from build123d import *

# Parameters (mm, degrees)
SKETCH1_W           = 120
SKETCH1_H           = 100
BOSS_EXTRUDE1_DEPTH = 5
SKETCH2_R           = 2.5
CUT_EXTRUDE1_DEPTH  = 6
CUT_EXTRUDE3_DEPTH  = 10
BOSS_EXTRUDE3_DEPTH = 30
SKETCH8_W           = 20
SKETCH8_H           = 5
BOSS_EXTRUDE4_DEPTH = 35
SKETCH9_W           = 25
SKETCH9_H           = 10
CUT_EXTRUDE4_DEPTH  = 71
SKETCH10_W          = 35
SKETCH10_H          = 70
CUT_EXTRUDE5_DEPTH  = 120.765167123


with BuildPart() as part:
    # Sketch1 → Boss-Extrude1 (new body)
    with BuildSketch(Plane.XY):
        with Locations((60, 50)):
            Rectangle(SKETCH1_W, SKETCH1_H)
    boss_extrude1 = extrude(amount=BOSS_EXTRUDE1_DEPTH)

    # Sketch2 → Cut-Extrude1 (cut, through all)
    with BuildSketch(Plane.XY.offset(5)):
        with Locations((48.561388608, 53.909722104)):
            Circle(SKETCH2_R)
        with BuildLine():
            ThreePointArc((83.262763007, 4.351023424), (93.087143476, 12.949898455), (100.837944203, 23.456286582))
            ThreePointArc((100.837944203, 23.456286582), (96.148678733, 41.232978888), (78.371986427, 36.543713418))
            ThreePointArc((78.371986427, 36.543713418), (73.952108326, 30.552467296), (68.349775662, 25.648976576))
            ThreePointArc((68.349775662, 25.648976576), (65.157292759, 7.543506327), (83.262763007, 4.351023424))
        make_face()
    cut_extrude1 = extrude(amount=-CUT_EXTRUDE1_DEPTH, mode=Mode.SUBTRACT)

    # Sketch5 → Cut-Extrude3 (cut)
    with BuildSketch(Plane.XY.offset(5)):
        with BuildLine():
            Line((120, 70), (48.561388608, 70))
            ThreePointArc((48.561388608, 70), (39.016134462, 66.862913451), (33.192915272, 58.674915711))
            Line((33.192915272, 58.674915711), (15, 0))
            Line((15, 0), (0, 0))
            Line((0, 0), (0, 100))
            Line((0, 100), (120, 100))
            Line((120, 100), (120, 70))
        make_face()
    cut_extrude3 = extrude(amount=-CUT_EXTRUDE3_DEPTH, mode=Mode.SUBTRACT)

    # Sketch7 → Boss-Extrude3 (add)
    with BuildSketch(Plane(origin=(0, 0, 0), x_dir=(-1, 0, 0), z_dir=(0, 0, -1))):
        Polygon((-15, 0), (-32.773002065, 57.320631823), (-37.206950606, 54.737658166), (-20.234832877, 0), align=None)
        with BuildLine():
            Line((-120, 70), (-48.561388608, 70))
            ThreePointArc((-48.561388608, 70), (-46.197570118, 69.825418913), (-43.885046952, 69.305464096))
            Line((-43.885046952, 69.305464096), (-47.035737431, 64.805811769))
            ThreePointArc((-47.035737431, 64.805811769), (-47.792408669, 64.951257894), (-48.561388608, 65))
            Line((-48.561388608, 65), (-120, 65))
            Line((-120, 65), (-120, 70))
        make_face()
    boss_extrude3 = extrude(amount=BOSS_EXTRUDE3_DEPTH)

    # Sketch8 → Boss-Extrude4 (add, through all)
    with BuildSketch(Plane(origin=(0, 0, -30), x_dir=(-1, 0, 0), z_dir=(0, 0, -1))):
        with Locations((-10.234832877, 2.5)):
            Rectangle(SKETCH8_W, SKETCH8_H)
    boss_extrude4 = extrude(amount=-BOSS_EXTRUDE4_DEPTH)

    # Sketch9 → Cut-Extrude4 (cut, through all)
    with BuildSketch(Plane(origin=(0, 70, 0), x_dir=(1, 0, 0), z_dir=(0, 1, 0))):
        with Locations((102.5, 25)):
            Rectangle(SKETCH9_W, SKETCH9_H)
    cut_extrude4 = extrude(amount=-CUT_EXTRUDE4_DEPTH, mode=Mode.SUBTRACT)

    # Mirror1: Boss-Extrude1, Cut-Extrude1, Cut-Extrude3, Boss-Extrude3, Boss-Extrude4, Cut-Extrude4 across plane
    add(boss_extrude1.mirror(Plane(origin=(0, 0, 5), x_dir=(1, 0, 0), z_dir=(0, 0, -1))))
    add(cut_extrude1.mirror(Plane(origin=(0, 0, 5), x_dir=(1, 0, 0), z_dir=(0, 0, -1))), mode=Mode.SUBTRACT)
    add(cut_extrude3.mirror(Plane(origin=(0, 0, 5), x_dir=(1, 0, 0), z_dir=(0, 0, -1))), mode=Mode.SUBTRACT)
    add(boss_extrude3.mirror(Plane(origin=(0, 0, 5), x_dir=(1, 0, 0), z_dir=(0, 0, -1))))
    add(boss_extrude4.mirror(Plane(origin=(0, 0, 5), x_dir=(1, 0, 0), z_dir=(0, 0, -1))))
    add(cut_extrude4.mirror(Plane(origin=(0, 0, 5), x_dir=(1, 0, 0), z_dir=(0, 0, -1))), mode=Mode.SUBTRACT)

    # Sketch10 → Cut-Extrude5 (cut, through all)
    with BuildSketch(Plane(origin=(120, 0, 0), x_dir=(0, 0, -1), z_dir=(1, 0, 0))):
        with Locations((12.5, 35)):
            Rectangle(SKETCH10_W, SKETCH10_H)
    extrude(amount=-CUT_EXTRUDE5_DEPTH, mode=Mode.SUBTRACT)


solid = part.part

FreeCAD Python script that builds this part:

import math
import FreeCAD as App
import Part
import Sketcher
Q = App.Units.Quantity


def add_polygon(sketch, points):
    """Adds a closed chain of lines whose ends are joined by coincident constraints."""
    first, n = sketch.GeometryCount, len(points)
    for a, b in zip(points, points[1:] + points[:1]):
        sketch.addGeometry(Part.LineSegment(App.Vector(*a, 0), App.Vector(*b, 0)), False)
    for i in range(n):
        sketch.addConstraint(Sketcher.Constraint("Coincident", first + i, 2, first + (i + 1) % n, 1))

doc = App.newDocument("Part")
body = doc.addObject("PartDesign::Body", "Body")

sketch1 = body.newObject("Sketcher::SketchObject", "Sketch")
sketch1.AttachmentSupport = (doc.getObject("XY_Plane"), [""])
sketch1.MapMode = "FlatFace"
add_polygon(sketch1, [(0, 100), (0, 0), (120, 0), (120, 100)])
sketch1.addConstraint(Sketcher.Constraint("Vertical", 0))
sketch1.addConstraint(Sketcher.Constraint("Horizontal", 1))
sketch1.addConstraint(Sketcher.Constraint("Vertical", 2))
sketch1.addConstraint(Sketcher.Constraint("Horizontal", 3))
sketch1.addConstraint(Sketcher.Constraint("Coincident", 0, 2, -1, 1))
sketch1.addConstraint(Sketcher.Constraint("DistanceX", 1, 1, 1, 2, Q("120 mm")))
sketch1.addConstraint(Sketcher.Constraint("DistanceY", 0, 2, 0, 1, Q("100 mm")))
pad1 = body.newObject("PartDesign::Pad", "Pad")
pad1.Profile = sketch1
pad1.Length = 5

sketch2 = body.newObject("Sketcher::SketchObject", "Sketch001")
sketch2.AttachmentSupport = (doc.getObject("XY_Plane"), [""])
sketch2.MapMode = "FlatFace"
sketch2.AttachmentOffset = App.Placement(App.Vector(0, 0, 5), App.Rotation())
sketch2.addGeometry(Part.Circle(App.Vector(48.561389, 53.909722, 0), App.Vector(0, 0, 1), 2.5), False)
sketch2.addGeometry(Part.ArcOfCircle(Part.Circle(App.Vector(48.561389, 53.909722, 0), App.Vector(0, 0, 1), 60.5), math.radians(-55), math.radians(-30.222716)), False)
sketch2.addGeometry(Part.ArcOfCircle(Part.Circle(App.Vector(89.604965, 30, 0), App.Vector(0, 0, 1), 13), math.radians(-30.222716), math.radians(149.777284)), False)
sketch2.addGeometry(Part.ArcOfCircle(Part.Circle(App.Vector(48.561389, 53.909722, 0), App.Vector(0, 0, 1), 34.5), math.radians(-55), math.radians(-30.222716)), False)
sketch2.addGeometry(Part.ArcOfCircle(Part.Circle(App.Vector(75.806269, 15, 0), App.Vector(0, 0, 1), 13), math.radians(125), math.radians(305)), False)
sketch2.addConstraint(Sketcher.Constraint("Tangent", 1, 2, 2, 1))
sketch2.addConstraint(Sketcher.Constraint("Tangent", 2, 2, 3, 2))
sketch2.addConstraint(Sketcher.Constraint("Tangent", 3, 1, 4, 1))
sketch2.addConstraint(Sketcher.Constraint("Tangent", 4, 2, 1, 1))
sketch2.addConstraint(Sketcher.Constraint("Coincident", 1, 3, 0, 3))
sketch2.addConstraint(Sketcher.Constraint("Coincident", 3, 3, 0, 3))
sketch2.addConstraint(Sketcher.Constraint("Diameter", 0, Q("5 mm")))
sketch2.addConstraint(Sketcher.Constraint("Radius", 2, Q("13 mm")))
sketch2.addConstraint(Sketcher.Constraint("Radius", 1, Q("60.5 mm")))
sketch2.addConstraint(Sketcher.Constraint("DistanceY", -1, 1, 2, 3, Q("30 mm")))
sketch2.addConstraint(Sketcher.Constraint("DistanceY", -1, 1, 4, 3, Q("15 mm")))
sketch2.addConstraint(Sketcher.Constraint("DistanceX", -1, 1, 0, 3, Q("48.561389 mm")))
sketch2.addConstraint(Sketcher.Constraint("DistanceX", -1, 1, 4, 3, Q("75.806269 mm")))
pocket1 = body.newObject("PartDesign::Pocket", "Pocket")
pocket1.Profile = sketch2
pocket1.Type = "ThroughAll"

sketch3 = body.newObject("Sketcher::SketchObject", "Sketch002")
sketch3.AttachmentSupport = (doc.getObject("XY_Plane"), [""])
sketch3.MapMode = "FlatFace"
sketch3.AttachmentOffset = App.Placement(App.Vector(0, 0, 5), App.Rotation())
sketch3.addGeometry(Part.LineSegment(App.Vector(48.561389, 70, 0), App.Vector(120, 70, 0)), False)
sketch3.addGeometry(Part.LineSegment(App.Vector(120, 70, 0), App.Vector(120, 100, 0)), False)
sketch3.addGeometry(Part.LineSegment(App.Vector(120, 100, 0), App.Vector(0, 100, 0)), False)
sketch3.addGeometry(Part.LineSegment(App.Vector(0, 100, 0), App.Vector(0, 0, 0)), False)
sketch3.addGeometry(Part.LineSegment(App.Vector(0, 0, 0), App.Vector(15, 0, 0)), False)
sketch3.addGeometry(Part.LineSegment(App.Vector(15, 0, 0), App.Vector(33.192915, 58.674916, 0)), False)
sketch3.addGeometry(Part.ArcOfCircle(Part.Circle(App.Vector(48.561389, 53.909722, 0), App.Vector(0, 0, 1), 16.090278), math.radians(90), math.radians(162.773275)), False)
sketch3.addConstraint(Sketcher.Constraint("Coincident", 0, 2, 1, 1))
sketch3.addConstraint(Sketcher.Constraint("Coincident", 1, 2, 2, 1))
sketch3.addConstraint(Sketcher.Constraint("Coincident", 2, 2, 3, 1))
sketch3.addConstraint(Sketcher.Constraint("Coincident", 3, 2, 4, 1))
sketch3.addConstraint(Sketcher.Constraint("Coincident", 4, 2, 5, 1))
sketch3.addConstraint(Sketcher.Constraint("Tangent", 5, 2, 6, 2))
sketch3.addConstraint(Sketcher.Constraint("Tangent", 6, 1, 0, 1))
sketch3.addConstraint(Sketcher.Constraint("Horizontal", 0))
sketch3.addConstraint(Sketcher.Constraint("Vertical", 1))
sketch3.addConstraint(Sketcher.Constraint("Horizontal", 2))
sketch3.addConstraint(Sketcher.Constraint("Vertical", 3))
sketch3.addConstraint(Sketcher.Constraint("Horizontal", 4))
sketch3.addConstraint(Sketcher.Constraint("Coincident", 3, 2, -1, 1))
sketch3.addConstraint(Sketcher.Constraint("DistanceX", 2, 2, 2, 1, Q("120 mm")))
sketch3.addConstraint(Sketcher.Constraint("DistanceX", 4, 1, 4, 2, Q("15 mm")))
sketch3.addConstraint(Sketcher.Constraint("DistanceY", 1, 1, 1, 2, Q("30 mm")))
sketch3.addConstraint(Sketcher.Constraint("DistanceY", 3, 2, 3, 1, Q("100 mm")))
sketch3.addConstraint(Sketcher.Constraint("Radius", 6, Q("16.090278 mm")))
sketch3.addConstraint(Sketcher.Constraint("DistanceX", 0, 1, 0, 2, Q("71.438611 mm")))
pocket2 = body.newObject("PartDesign::Pocket", "Pocket001")
pocket2.Profile = sketch3
pocket2.Length = 10

sketch4 = body.newObject("Sketcher::SketchObject", "Sketch003")
sketch4.AttachmentSupport = (doc.getObject("XY_Plane"), [""])
sketch4.MapMode = "FlatFace"
add_polygon(sketch4, [(15, 0), (32.773002, 57.320632), (37.206951, 54.737658), (20.234833, 0)])
sketch4.addGeometry(Part.LineSegment(App.Vector(48.561389, 70, 0), App.Vector(120, 70, 0)), False)
sketch4.addGeometry(Part.LineSegment(App.Vector(120, 70, 0), App.Vector(120, 65, 0)), False)
sketch4.addGeometry(Part.LineSegment(App.Vector(120, 65, 0), App.Vector(48.561389, 65, 0)), False)
sketch4.addGeometry(Part.ArcOfCircle(Part.Circle(App.Vector(48.561389, 58.909722, 0), App.Vector(0, 0, 1), 6.090278), math.radians(90), math.radians(104.507457)), False)
sketch4.addGeometry(Part.LineSegment(App.Vector(47.035737, 64.805812, 0), App.Vector(43.885047, 69.305464, 0)), False)
sketch4.addGeometry(Part.ArcOfCircle(Part.Circle(App.Vector(48.561389, 53.909722, 0), App.Vector(0, 0, 1), 16.090278), math.radians(90), math.radians(106.895767)), False)
sketch4.addConstraint(Sketcher.Constraint("Coincident", 4, 2, 5, 1))
sketch4.addConstraint(Sketcher.Constraint("Coincident", 5, 2, 6, 1))
sketch4.addConstraint(Sketcher.Constraint("Tangent", 6, 2, 7, 1))
sketch4.addConstraint(Sketcher.Constraint("Coincident", 7, 2, 8, 1))
sketch4.addConstraint(Sketcher.Constraint("Coincident", 8, 2, 9, 2))
sketch4.addConstraint(Sketcher.Constraint("Tangent", 9, 1, 4, 1))
sketch4.addConstraint(Sketcher.Constraint("Horizontal", 3))
sketch4.addConstraint(Sketcher.Constraint("Horizontal", 4))
sketch4.addConstraint(Sketcher.Constraint("Vertical", 5))
sketch4.addConstraint(Sketcher.Constraint("Horizontal", 6))
sketch4.addConstraint(Sketcher.Constraint("PointOnObject", 2, 2, -1))
sketch4.addConstraint(Sketcher.Constraint("Parallel", 0, 2))
sketch4.addConstraint(Sketcher.Constraint("Vertical", 7, 3, 9, 3))
sketch4.addConstraint(Sketcher.Constraint("DistanceY", 5, 2, 5, 1, Q("5 mm")))
sketch4.addConstraint(Sketcher.Constraint("Angle", 8, Q("125 deg")))
sketch4.addConstraint(Sketcher.Constraint("DistanceX", -1, 1, 3, 2, Q("15 mm")))
sketch4.addConstraint(Sketcher.Constraint("DistanceX", -1, 1, 4, 2, Q("120 mm")))
sketch4.addConstraint(Sketcher.Constraint("DistanceY", -1, 1, 4, 2, Q("70 mm")))
sketch4.addConstraint(Sketcher.Constraint("DistanceY", 9, 3, 7, 3, Q("5 mm")))
sketch4.addConstraint(Sketcher.Constraint("Radius", 7, Q("6.090278 mm")))
sketch4.addConstraint(Sketcher.Constraint("Distance", 2, Q("57.308499 mm")))
sketch4.addConstraint(Sketcher.Constraint("DistanceX", 4, 1, 4, 2, Q("71.438611 mm")))
sketch4.addConstraint(Sketcher.Constraint("Distance", 8, Q("5.493061 mm")))
sketch4.addConstraint(Sketcher.Constraint("DistanceX", 3, 2, 3, 1, Q("5.234833 mm")))
sketch4.addConstraint(Sketcher.Constraint("DistanceY", -1, 1, 0, 2, Q("57.320632 mm")))
sketch4.addConstraint(Sketcher.Constraint("DistanceX", -1, 1, 1, 2, Q("37.206951 mm")))
pad2 = body.newObject("PartDesign::Pad", "Pad001")
pad2.Profile = sketch4
pad2.Length = 30
pad2.Reversed = True

sketch5 = body.newObject("Sketcher::SketchObject", "Sketch004")
sketch5.AttachmentSupport = (doc.getObject("XY_Plane"), [""])
sketch5.MapMode = "FlatFace"
sketch5.AttachmentOffset = App.Placement(App.Vector(0, 0, -30), App.Rotation())
add_polygon(sketch5, [(20.234833, 5), (20.234833, 0), (0.234833, 0), (0.234833, 5)])
sketch5.addConstraint(Sketcher.Constraint("Vertical", 0))
sketch5.addConstraint(Sketcher.Constraint("Horizontal", 1))
sketch5.addConstraint(Sketcher.Constraint("Vertical", 2))
sketch5.addConstraint(Sketcher.Constraint("Horizontal", 3))
sketch5.addConstraint(Sketcher.Constraint("PointOnObject", 0, 2, -1))
sketch5.addConstraint(Sketcher.Constraint("DistanceX", 1, 2, 1, 1, Q("20 mm")))
sketch5.addConstraint(Sketcher.Constraint("DistanceY", 0, 2, 0, 1, Q("5 mm")))
sketch5.addConstraint(Sketcher.Constraint("DistanceX", -1, 1, 0, 2, Q("20.234833 mm")))
pad3 = body.newObject("PartDesign::Pad", "Pad002")
pad3.Profile = sketch5
pad3.Length = 35

sketch6 = body.newObject("Sketcher::SketchObject", "Sketch005")
sketch6.AttachmentSupport = (doc.getObject("XZ_Plane"), [""])
sketch6.MapMode = "FlatFace"
sketch6.AttachmentOffset = App.Placement(App.Vector(0, 0, -70), App.Rotation())
add_polygon(sketch6, [(90, -30), (90, -20), (115, -20), (115, -30)])
sketch6.addConstraint(Sketcher.Constraint("Vertical", 0))
sketch6.addConstraint(Sketcher.Constraint("Horizontal", 1))
sketch6.addConstraint(Sketcher.Constraint("Vertical", 2))
sketch6.addConstraint(Sketcher.Constraint("Horizontal", 3))
sketch6.addConstraint(Sketcher.Constraint("DistanceX", 1, 1, 1, 2, Q("25 mm")))
sketch6.addConstraint(Sketcher.Constraint("DistanceY", 0, 1, 0, 2, Q("10 mm")))
sketch6.addConstraint(Sketcher.Constraint("DistanceX", -1, 1, 0, 2, Q("90 mm")))
sketch6.addConstraint(Sketcher.Constraint("DistanceY", 0, 2, -1, 1, Q("20 mm")))
pocket3 = body.newObject("PartDesign::Pocket", "Pocket002")
pocket3.Profile = sketch6
pocket3.Type = "ThroughAll"
pocket3.Reversed = True
doc.recompute()

datumplane = body.newObject("PartDesign::Plane", "DatumPlane")
datumplane.AttachmentSupport = (doc.getObject("XY_Plane"), [""])
datumplane.MapMode = "FlatFace"
datumplane.AttachmentOffset = App.Placement(App.Vector(0, 0, 5), App.Rotation())
mirrored = body.newObject("PartDesign::Mirrored", "Mirrored")
mirrored.Originals = [pad1, pocket1, pocket2, pad2, pad3, pocket3]
mirrored.MirrorPlane = (datumplane, [""])
body.Tip = mirrored

sketch7 = body.newObject("Sketcher::SketchObject", "Sketch006")
sketch7.AttachmentSupport = (doc.getObject("YZ_Plane"), [""])
sketch7.MapMode = "FlatFace"
sketch7.AttachmentOffset = App.Placement(App.Vector(0, 0, 120), App.Rotation())
add_polygon(sketch7, [(70, 5), (0, 5), (0, -30), (70, -30)])
sketch7.addConstraint(Sketcher.Constraint("Horizontal", 0))
sketch7.addConstraint(Sketcher.Constraint("Vertical", 1))
sketch7.addConstraint(Sketcher.Constraint("Horizontal", 2))
sketch7.addConstraint(Sketcher.Constraint("Vertical", 3))
sketch7.addConstraint(Sketcher.Constraint("PointOnObject", 0, 2, -2))
sketch7.addConstraint(Sketcher.Constraint("DistanceX", 0, 2, 0, 1, Q("70 mm")))
sketch7.addConstraint(Sketcher.Constraint("DistanceY", 1, 2, 1, 1, Q("35 mm")))
sketch7.addConstraint(Sketcher.Constraint("DistanceY", -1, 1, 0, 2, Q("5 mm")))
pocket4 = body.newObject("PartDesign::Pocket", "Pocket003")
pocket4.Profile = sketch7
pocket4.Type = "ThroughAll"

doc.recompute()
